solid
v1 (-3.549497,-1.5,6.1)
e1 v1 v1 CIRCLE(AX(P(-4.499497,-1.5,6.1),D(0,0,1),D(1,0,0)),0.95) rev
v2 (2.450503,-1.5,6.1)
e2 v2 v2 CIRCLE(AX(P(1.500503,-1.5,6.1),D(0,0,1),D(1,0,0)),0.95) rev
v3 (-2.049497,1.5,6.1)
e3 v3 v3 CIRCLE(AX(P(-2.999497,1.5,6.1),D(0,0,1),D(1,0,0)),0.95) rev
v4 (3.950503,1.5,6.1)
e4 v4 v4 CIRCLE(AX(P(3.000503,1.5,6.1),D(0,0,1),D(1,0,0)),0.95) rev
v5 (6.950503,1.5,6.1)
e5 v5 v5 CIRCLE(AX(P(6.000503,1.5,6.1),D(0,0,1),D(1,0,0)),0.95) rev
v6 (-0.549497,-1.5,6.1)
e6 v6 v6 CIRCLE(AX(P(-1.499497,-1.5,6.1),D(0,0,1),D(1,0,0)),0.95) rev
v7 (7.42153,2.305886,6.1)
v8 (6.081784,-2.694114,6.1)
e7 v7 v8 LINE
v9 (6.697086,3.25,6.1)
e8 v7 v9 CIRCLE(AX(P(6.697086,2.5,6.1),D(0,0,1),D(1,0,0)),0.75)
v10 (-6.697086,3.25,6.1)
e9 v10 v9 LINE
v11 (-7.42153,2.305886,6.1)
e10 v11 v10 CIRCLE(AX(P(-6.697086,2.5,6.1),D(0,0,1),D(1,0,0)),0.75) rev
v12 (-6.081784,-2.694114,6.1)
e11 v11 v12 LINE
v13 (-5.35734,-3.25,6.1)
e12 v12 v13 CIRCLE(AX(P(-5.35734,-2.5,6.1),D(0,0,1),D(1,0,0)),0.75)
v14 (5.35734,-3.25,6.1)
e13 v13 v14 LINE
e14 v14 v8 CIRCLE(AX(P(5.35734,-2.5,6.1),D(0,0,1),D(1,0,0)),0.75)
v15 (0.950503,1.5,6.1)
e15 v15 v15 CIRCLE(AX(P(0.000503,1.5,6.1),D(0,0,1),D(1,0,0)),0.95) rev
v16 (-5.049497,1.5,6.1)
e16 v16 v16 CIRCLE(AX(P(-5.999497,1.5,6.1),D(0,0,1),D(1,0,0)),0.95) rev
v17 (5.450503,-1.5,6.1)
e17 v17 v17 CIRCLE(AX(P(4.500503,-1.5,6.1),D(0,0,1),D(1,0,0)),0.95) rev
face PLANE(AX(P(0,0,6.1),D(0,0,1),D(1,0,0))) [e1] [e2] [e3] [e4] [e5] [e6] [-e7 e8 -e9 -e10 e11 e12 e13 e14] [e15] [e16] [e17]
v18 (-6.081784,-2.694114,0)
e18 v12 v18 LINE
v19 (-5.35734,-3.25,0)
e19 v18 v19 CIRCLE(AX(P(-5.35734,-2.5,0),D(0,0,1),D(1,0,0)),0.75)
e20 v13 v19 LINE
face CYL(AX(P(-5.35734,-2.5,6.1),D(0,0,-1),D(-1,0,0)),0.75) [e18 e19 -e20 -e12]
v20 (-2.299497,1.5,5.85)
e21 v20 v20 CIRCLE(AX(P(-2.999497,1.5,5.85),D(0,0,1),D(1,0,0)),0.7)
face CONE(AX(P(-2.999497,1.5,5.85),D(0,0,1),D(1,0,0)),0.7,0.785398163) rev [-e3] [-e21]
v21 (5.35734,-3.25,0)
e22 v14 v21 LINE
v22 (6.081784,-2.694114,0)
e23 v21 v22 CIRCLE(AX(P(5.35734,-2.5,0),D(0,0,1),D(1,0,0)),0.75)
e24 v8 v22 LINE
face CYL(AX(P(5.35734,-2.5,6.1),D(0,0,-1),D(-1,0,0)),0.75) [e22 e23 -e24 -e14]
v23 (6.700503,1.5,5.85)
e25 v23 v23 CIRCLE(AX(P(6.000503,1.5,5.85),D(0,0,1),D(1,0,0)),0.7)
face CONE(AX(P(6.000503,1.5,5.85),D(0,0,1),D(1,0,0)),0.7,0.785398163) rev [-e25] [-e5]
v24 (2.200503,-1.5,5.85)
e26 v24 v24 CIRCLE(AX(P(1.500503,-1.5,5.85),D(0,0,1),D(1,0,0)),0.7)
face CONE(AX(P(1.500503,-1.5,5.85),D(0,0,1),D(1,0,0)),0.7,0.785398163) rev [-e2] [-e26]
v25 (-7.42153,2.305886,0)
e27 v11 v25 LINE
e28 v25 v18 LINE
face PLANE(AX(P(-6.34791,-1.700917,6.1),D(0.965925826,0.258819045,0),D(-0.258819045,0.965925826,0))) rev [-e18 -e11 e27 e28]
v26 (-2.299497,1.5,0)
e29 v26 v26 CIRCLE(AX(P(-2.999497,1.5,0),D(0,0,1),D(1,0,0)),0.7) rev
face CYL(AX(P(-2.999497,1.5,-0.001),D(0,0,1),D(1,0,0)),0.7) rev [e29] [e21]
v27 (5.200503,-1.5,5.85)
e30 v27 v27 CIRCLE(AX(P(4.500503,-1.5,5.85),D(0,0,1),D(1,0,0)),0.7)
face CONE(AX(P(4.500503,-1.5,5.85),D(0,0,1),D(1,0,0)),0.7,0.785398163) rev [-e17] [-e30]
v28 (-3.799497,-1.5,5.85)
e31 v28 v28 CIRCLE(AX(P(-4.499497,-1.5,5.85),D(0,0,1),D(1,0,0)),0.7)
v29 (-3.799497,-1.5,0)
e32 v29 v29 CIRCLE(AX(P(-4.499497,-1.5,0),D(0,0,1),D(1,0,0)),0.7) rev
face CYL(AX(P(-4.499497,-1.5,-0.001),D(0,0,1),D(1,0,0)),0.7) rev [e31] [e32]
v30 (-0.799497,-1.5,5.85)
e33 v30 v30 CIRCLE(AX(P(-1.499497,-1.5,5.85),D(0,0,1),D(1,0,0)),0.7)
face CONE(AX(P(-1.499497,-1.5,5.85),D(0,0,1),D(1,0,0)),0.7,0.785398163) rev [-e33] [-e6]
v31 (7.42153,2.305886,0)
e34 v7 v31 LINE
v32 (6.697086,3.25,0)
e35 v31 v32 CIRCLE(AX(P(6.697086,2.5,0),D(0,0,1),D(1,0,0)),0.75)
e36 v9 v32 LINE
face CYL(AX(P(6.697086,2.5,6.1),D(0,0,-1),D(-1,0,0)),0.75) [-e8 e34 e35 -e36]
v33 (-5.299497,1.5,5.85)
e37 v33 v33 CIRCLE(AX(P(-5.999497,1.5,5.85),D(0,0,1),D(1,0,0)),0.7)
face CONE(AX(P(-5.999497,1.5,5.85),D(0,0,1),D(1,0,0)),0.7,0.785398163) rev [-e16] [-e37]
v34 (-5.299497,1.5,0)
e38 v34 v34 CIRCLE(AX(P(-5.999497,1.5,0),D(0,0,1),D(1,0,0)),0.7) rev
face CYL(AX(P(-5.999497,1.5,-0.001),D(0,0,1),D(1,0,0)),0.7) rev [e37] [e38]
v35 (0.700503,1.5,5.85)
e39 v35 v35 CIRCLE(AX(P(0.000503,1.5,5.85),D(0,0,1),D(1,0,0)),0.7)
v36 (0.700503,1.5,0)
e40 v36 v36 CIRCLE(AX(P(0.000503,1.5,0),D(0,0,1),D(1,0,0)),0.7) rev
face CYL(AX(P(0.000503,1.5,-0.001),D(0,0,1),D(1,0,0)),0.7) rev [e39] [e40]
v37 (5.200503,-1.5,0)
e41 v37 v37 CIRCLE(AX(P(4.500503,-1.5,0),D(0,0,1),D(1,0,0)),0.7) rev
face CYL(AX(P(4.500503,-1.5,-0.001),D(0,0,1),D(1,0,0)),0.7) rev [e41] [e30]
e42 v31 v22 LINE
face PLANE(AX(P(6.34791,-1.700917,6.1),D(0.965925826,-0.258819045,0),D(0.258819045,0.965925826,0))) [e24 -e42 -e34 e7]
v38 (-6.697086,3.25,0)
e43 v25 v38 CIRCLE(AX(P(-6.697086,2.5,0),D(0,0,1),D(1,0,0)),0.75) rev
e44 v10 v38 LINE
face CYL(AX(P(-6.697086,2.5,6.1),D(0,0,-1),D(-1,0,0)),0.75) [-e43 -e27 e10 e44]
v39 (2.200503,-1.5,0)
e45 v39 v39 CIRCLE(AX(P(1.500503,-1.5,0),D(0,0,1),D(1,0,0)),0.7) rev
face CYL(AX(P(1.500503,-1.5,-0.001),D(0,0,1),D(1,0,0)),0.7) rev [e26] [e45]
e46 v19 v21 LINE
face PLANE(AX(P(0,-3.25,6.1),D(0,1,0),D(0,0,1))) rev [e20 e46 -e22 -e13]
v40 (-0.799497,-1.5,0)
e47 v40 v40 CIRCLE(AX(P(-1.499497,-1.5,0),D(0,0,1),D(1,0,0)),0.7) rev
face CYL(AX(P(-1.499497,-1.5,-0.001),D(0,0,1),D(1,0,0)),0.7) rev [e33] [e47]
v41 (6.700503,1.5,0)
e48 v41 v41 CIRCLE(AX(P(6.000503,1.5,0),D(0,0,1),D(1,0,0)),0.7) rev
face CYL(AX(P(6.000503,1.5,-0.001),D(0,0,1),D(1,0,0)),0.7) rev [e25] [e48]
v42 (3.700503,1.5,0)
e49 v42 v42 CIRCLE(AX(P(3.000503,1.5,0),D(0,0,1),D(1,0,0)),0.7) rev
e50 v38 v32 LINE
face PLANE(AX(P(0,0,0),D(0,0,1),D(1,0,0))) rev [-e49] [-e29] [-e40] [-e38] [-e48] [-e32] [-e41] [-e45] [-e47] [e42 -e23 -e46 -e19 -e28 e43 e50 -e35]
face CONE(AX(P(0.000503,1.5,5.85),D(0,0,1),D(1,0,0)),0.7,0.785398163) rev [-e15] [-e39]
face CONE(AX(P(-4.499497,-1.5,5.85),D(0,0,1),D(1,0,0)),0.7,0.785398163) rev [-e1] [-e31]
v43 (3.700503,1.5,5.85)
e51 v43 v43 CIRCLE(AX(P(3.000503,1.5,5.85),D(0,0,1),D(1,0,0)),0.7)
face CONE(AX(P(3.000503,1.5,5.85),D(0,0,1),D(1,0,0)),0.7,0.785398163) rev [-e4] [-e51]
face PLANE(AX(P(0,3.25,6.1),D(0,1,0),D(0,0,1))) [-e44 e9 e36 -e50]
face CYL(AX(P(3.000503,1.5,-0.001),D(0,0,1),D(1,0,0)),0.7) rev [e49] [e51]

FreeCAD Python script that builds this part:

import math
import FreeCAD as App
import Part
import Sketcher

V = App.Vector
Q = App.Units.Quantity


def edges_at(feature, points):
    """Names of the edges that pass closest to the given points."""
    edges = feature.Shape.Edges
    near = lambda p: min(range(len(edges)), key=lambda i: edges[i].distToShape(Part.Vertex(*p))[0])
    return sorted({f"Edge{near(p) + 1}" for p in points})

doc = App.newDocument("Part")
body = doc.addObject("PartDesign::Body", "Body")

# Sketch on XY plane
sketch1 = body.newObject("Sketcher::SketchObject", "Sketch")
sketch1.AttachmentSupport = (doc.getObject("XY_Plane"), [""])
sketch1.MapMode = "FlatFace"
sketch1.addGeometry([
    Part.LineSegment(V(-5.35734, -3.25, 0), V(5.35734, -3.25, 0)),  # 0
    Part.ArcOfCircle(Part.Circle(V(5.35734, -2.5, 0), V(0, 0, 1), 0.75), math.radians(-90), math.radians(-15)),  # 1
    Part.LineSegment(V(6.081784, -2.694114, 0), V(7.42153, 2.305886, 0)),  # 2
    Part.ArcOfCircle(Part.Circle(V(6.697086, 2.5, 0), V(0, 0, 1), 0.75), math.radians(-15), math.radians(90)),  # 3
    Part.LineSegment(V(6.697086, 3.25, 0), V(-6.697086, 3.25, 0)),  # 4
    Part.ArcOfCircle(Part.Circle(V(-6.697086, 2.5, 0), V(0, 0, 1), 0.75), math.radians(90), math.radians(195)),  # 5
    Part.LineSegment(V(-7.42153, 2.305886, 0), V(-6.081784, -2.694114, 0)),  # 6
    Part.ArcOfCircle(Part.Circle(V(-5.35734, -2.5, 0), V(0, 0, 1), 0.75), math.radians(-165), math.radians(-90)),  # 7
], False)
sketch1.addConstraint([
    Sketcher.Constraint("Tangent", 0, 2, 1, 1),
    Sketcher.Constraint("Tangent", 1, 2, 2, 1),
    Sketcher.Constraint("Tangent", 2, 2, 3, 1),
    Sketcher.Constraint("Tangent", 3, 2, 4, 1),
    Sketcher.Constraint("Tangent", 4, 2, 5, 1),
    Sketcher.Constraint("Tangent", 5, 2, 6, 1),
    Sketcher.Constraint("Tangent", 6, 2, 7, 1),
    Sketcher.Constraint("Tangent", 7, 2, 0, 1),
    Sketcher.Constraint("Horizontal", 0),
    Sketcher.Constraint("Horizontal", 4),
    Sketcher.Constraint("Equal", 1, 3),
    Sketcher.Constraint("Equal", 3, 5),
    Sketcher.Constraint("Equal", 5, 7),
    Sketcher.Constraint("Symmetric", 2, 2, 5, 2, -2),
    Sketcher.Constraint("Angle", 2, Q("75 deg")),
    Sketcher.Constraint("Radius", 1, 0.75),
    Sketcher.Constraint("DistanceY", 1, 3, 3, 3, 5.0),
    Sketcher.Constraint("DistanceY", 1, 3, -1, 1, 2.5),
    Sketcher.Constraint("DistanceX", 0, 1, 0, 2, 10.71468),
])
pad1 = body.newObject("PartDesign::Pad", "Pad")
pad1.Profile = sketch1
pad1.Length = 6.1

# Sketch on XY plane
sketch2 = body.newObject("Sketcher::SketchObject", "Sketch001")
sketch2.AttachmentSupport = (doc.getObject("XY_Plane"), [""])
sketch2.MapMode = "FlatFace"
sketch2.AttachmentOffset = App.Placement(V(0, 0, 6.1), App.Rotation())
sketch2.addGeometry(Part.Circle(V(-5.999497, 1.5, 0), V(0, 0, 1), 0.7), False)
sketch2.addConstraint([
    Sketcher.Constraint("Diameter", 0, 1.4),
    Sketcher.Constraint("DistanceY", -1, 1, 0, 3, 1.5),
    Sketcher.Constraint("DistanceX", 0, 3, -1, 1, 5.999497),
])
pocket1 = body.newObject("PartDesign::Pocket", "Pocket")
pocket1.Profile = sketch2
pocket1.Type = "UpToFirst"

# Sketch on XY plane
sketch3 = body.newObject("Sketcher::SketchObject", "Sketch002")
sketch3.AttachmentSupport = (doc.getObject("XY_Plane"), [""])
sketch3.MapMode = "FlatFace"
sketch3.AttachmentOffset = App.Placement(V(0, 0, 6.1), App.Rotation())
sketch3.addGeometry(Part.Circle(V(-2.999497, 1.5, 0), V(0, 0, 1), 0.7), False)
sketch3.addConstraint([
    Sketcher.Constraint("Diameter", 0, 1.4),
    Sketcher.Constraint("DistanceY", -1, 1, 0, 3, 1.5),
    Sketcher.Constraint("DistanceX", 0, 3, -1, 1, 2.999497),
])
pocket2 = body.newObject("PartDesign::Pocket", "Pocket001")
pocket2.Profile = sketch3
pocket2.Type = "UpToFirst"

# Sketch on XY plane
sketch4 = body.newObject("Sketcher::SketchObject", "Sketch003")
sketch4.AttachmentSupport = (doc.getObject("XY_Plane"), [""])
sketch4.MapMode = "FlatFace"
sketch4.AttachmentOffset = App.Placement(V(0, 0, 6.1), App.Rotation())
sketch4.addGeometry(Part.Circle(V(0.000503, 1.5, 0), V(0, 0, 1), 0.7), False)
sketch4.addConstraint([
    Sketcher.Constraint("Diameter", 0, 1.4),
    Sketcher.Constraint("DistanceY", -1, 1, 0, 3, 1.5),
    Sketcher.Constraint("DistanceX", -1, 1, 0, 3, 0.000503),
])
pocket3 = body.newObject("PartDesign::Pocket", "Pocket002")
pocket3.Profile = sketch4
pocket3.Type = "UpToFirst"

# Sketch on XY plane
sketch5 = body.newObject("Sketcher::SketchObject", "Sketch004")
sketch5.AttachmentSupport = (doc.getObject("XY_Plane"), [""])
sketch5.MapMode = "FlatFace"
sketch5.AttachmentOffset = App.Placement(V(0, 0, 6.1), App.Rotation())
sketch5.addGeometry(Part.Circle(V(3.000503, 1.5, 0), V(0, 0, 1), 0.7), False)
sketch5.addConstraint([
    Sketcher.Constraint("Diameter", 0, 1.4),
    Sketcher.Constraint("DistanceY", -1, 1, 0, 3, 1.5),
    Sketcher.Constraint("DistanceX", -1, 1, 0, 3, 3.000503),
])
pocket4 = body.newObject("PartDesign::Pocket", "Pocket003")
pocket4.Profile = sketch5
pocket4.Type = "UpToFirst"

# Sketch on XY plane
sketch6 = body.newObject("Sketcher::SketchObject", "Sketch005")
sketch6.AttachmentSupport = (doc.getObject("XY_Plane"), [""])
sketch6.MapMode = "FlatFace"
sketch6.AttachmentOffset = App.Placement(V(0, 0, 6.1), App.Rotation())
sketch6.addGeometry(Part.Circle(V(6.000503, 1.5, 0), V(0, 0, 1), 0.7), False)
sketch6.addConstraint([
    Sketcher.Constraint("Diameter", 0, 1.4),
    Sketcher.Constraint("DistanceY", -1, 1, 0, 3, 1.5),
    Sketcher.Constraint("DistanceX", -1, 1, 0, 3, 6.000503),
])
pocket5 = body.newObject("PartDesign::Pocket", "Pocket004")
pocket5.Profile = sketch6
pocket5.Type = "UpToFirst"

# Sketch on XY plane
sketch7 = body.newObject("Sketcher::SketchObject", "Sketch006")
sketch7.AttachmentSupport = (doc.getObject("XY_Plane"), [""])
sketch7.MapMode = "FlatFace"
sketch7.AttachmentOffset = App.Placement(V(0, 0, 6.1), App.Rotation())
sketch7.addGeometry(Part.Circle(V(-4.499497, -1.5, 0), V(0, 0, 1), 0.7), False)
sketch7.addConstraint([
    Sketcher.Constraint("Diameter", 0, 1.4),
    Sketcher.Constraint("DistanceY", 0, 3, -1, 1, 1.5),
    Sketcher.Constraint("DistanceX", 0, 3, -1, 1, 4.499497),
])
pocket6 = body.newObject("PartDesign::Pocket", "Pocket005")
pocket6.Profile = sketch7
pocket6.Type = "UpToFirst"

# Sketch on XY plane
sketch8 = body.newObject("Sketcher::SketchObject", "Sketch007")
sketch8.AttachmentSupport = (doc.getObject("XY_Plane"), [""])
sketch8.MapMode = "FlatFace"
sketch8.AttachmentOffset = App.Placement(V(0, 0, 6.1), App.Rotation())
sketch8.addGeometry(Part.Circle(V(-1.499497, -1.5, 0), V(0, 0, 1), 0.7), False)
sketch8.addConstraint([
    Sketcher.Constraint("Diameter", 0, 1.4),
    Sketcher.Constraint("DistanceY", 0, 3, -1, 1, 1.5),
    Sketcher.Constraint("DistanceX", 0, 3, -1, 1, 1.499497),
])
pocket7 = body.newObject("PartDesign::Pocket", "Pocket006")
pocket7.Profile = sketch8
pocket7.Type = "UpToFirst"

# Sketch on XY plane
sketch9 = body.newObject("Sketcher::SketchObject", "Sketch008")
sketch9.AttachmentSupport = (doc.getObject("XY_Plane"), [""])
sketch9.MapMode = "FlatFace"
sketch9.AttachmentOffset = App.Placement(V(0, 0, 6.1), App.Rotation())
sketch9.addGeometry(Part.Circle(V(1.500503, -1.5, 0), V(0, 0, 1), 0.7), False)
sketch9.addConstraint([
    Sketcher.Constraint("Diameter", 0, 1.4),
    Sketcher.Constraint("DistanceY", 0, 3, -1, 1, 1.5),
    Sketcher.Constraint("DistanceX", -1, 1, 0, 3, 1.500503),
])
pocket8 = body.newObject("PartDesign::Pocket", "Pocket007")
pocket8.Profile = sketch9
pocket8.Type = "UpToFirst"

# Sketch on XY plane
sketch10 = body.newObject("Sketcher::SketchObject", "Sketch009")
sketch10.AttachmentSupport = (doc.getObject("XY_Plane"), [""])
sketch10.MapMode = "FlatFace"
sketch10.AttachmentOffset = App.Placement(V(0, 0, 6.1), App.Rotation())
sketch10.addGeometry(Part.Circle(V(4.500503, -1.5, 0), V(0, 0, 1), 0.7), False)
sketch10.addConstraint([
    Sketcher.Constraint("Diameter", 0, 1.4),
    Sketcher.Constraint("DistanceY", 0, 3, -1, 1, 1.5),
    Sketcher.Constraint("DistanceX", -1, 1, 0, 3, 4.500503),
])
pocket9 = body.newObject("PartDesign::Pocket", "Pocket008")
pocket9.Profile = sketch10
pocket9.Type = "UpToFirst"
doc.recompute()

chamfer = body.newObject("PartDesign::Chamfer", "Chamfer")
chamfer.Base = (pocket9, edges_at(pocket9, [
    (-6.699, 1.5, 6.1),
    (-3.699, 1.5, 6.1),
    (-0.699, 1.5, 6.1),
    (2.301, 1.5, 6.1),
    (5.301, 1.5, 6.1),
    (-5.199, -1.5, 6.1),
    (-2.199, -1.5, 6.1),
    (0.801, -1.5, 6.1),
    (3.801, -1.5, 6.1),
]))
chamfer.Size = 0.25

doc.recompute()
